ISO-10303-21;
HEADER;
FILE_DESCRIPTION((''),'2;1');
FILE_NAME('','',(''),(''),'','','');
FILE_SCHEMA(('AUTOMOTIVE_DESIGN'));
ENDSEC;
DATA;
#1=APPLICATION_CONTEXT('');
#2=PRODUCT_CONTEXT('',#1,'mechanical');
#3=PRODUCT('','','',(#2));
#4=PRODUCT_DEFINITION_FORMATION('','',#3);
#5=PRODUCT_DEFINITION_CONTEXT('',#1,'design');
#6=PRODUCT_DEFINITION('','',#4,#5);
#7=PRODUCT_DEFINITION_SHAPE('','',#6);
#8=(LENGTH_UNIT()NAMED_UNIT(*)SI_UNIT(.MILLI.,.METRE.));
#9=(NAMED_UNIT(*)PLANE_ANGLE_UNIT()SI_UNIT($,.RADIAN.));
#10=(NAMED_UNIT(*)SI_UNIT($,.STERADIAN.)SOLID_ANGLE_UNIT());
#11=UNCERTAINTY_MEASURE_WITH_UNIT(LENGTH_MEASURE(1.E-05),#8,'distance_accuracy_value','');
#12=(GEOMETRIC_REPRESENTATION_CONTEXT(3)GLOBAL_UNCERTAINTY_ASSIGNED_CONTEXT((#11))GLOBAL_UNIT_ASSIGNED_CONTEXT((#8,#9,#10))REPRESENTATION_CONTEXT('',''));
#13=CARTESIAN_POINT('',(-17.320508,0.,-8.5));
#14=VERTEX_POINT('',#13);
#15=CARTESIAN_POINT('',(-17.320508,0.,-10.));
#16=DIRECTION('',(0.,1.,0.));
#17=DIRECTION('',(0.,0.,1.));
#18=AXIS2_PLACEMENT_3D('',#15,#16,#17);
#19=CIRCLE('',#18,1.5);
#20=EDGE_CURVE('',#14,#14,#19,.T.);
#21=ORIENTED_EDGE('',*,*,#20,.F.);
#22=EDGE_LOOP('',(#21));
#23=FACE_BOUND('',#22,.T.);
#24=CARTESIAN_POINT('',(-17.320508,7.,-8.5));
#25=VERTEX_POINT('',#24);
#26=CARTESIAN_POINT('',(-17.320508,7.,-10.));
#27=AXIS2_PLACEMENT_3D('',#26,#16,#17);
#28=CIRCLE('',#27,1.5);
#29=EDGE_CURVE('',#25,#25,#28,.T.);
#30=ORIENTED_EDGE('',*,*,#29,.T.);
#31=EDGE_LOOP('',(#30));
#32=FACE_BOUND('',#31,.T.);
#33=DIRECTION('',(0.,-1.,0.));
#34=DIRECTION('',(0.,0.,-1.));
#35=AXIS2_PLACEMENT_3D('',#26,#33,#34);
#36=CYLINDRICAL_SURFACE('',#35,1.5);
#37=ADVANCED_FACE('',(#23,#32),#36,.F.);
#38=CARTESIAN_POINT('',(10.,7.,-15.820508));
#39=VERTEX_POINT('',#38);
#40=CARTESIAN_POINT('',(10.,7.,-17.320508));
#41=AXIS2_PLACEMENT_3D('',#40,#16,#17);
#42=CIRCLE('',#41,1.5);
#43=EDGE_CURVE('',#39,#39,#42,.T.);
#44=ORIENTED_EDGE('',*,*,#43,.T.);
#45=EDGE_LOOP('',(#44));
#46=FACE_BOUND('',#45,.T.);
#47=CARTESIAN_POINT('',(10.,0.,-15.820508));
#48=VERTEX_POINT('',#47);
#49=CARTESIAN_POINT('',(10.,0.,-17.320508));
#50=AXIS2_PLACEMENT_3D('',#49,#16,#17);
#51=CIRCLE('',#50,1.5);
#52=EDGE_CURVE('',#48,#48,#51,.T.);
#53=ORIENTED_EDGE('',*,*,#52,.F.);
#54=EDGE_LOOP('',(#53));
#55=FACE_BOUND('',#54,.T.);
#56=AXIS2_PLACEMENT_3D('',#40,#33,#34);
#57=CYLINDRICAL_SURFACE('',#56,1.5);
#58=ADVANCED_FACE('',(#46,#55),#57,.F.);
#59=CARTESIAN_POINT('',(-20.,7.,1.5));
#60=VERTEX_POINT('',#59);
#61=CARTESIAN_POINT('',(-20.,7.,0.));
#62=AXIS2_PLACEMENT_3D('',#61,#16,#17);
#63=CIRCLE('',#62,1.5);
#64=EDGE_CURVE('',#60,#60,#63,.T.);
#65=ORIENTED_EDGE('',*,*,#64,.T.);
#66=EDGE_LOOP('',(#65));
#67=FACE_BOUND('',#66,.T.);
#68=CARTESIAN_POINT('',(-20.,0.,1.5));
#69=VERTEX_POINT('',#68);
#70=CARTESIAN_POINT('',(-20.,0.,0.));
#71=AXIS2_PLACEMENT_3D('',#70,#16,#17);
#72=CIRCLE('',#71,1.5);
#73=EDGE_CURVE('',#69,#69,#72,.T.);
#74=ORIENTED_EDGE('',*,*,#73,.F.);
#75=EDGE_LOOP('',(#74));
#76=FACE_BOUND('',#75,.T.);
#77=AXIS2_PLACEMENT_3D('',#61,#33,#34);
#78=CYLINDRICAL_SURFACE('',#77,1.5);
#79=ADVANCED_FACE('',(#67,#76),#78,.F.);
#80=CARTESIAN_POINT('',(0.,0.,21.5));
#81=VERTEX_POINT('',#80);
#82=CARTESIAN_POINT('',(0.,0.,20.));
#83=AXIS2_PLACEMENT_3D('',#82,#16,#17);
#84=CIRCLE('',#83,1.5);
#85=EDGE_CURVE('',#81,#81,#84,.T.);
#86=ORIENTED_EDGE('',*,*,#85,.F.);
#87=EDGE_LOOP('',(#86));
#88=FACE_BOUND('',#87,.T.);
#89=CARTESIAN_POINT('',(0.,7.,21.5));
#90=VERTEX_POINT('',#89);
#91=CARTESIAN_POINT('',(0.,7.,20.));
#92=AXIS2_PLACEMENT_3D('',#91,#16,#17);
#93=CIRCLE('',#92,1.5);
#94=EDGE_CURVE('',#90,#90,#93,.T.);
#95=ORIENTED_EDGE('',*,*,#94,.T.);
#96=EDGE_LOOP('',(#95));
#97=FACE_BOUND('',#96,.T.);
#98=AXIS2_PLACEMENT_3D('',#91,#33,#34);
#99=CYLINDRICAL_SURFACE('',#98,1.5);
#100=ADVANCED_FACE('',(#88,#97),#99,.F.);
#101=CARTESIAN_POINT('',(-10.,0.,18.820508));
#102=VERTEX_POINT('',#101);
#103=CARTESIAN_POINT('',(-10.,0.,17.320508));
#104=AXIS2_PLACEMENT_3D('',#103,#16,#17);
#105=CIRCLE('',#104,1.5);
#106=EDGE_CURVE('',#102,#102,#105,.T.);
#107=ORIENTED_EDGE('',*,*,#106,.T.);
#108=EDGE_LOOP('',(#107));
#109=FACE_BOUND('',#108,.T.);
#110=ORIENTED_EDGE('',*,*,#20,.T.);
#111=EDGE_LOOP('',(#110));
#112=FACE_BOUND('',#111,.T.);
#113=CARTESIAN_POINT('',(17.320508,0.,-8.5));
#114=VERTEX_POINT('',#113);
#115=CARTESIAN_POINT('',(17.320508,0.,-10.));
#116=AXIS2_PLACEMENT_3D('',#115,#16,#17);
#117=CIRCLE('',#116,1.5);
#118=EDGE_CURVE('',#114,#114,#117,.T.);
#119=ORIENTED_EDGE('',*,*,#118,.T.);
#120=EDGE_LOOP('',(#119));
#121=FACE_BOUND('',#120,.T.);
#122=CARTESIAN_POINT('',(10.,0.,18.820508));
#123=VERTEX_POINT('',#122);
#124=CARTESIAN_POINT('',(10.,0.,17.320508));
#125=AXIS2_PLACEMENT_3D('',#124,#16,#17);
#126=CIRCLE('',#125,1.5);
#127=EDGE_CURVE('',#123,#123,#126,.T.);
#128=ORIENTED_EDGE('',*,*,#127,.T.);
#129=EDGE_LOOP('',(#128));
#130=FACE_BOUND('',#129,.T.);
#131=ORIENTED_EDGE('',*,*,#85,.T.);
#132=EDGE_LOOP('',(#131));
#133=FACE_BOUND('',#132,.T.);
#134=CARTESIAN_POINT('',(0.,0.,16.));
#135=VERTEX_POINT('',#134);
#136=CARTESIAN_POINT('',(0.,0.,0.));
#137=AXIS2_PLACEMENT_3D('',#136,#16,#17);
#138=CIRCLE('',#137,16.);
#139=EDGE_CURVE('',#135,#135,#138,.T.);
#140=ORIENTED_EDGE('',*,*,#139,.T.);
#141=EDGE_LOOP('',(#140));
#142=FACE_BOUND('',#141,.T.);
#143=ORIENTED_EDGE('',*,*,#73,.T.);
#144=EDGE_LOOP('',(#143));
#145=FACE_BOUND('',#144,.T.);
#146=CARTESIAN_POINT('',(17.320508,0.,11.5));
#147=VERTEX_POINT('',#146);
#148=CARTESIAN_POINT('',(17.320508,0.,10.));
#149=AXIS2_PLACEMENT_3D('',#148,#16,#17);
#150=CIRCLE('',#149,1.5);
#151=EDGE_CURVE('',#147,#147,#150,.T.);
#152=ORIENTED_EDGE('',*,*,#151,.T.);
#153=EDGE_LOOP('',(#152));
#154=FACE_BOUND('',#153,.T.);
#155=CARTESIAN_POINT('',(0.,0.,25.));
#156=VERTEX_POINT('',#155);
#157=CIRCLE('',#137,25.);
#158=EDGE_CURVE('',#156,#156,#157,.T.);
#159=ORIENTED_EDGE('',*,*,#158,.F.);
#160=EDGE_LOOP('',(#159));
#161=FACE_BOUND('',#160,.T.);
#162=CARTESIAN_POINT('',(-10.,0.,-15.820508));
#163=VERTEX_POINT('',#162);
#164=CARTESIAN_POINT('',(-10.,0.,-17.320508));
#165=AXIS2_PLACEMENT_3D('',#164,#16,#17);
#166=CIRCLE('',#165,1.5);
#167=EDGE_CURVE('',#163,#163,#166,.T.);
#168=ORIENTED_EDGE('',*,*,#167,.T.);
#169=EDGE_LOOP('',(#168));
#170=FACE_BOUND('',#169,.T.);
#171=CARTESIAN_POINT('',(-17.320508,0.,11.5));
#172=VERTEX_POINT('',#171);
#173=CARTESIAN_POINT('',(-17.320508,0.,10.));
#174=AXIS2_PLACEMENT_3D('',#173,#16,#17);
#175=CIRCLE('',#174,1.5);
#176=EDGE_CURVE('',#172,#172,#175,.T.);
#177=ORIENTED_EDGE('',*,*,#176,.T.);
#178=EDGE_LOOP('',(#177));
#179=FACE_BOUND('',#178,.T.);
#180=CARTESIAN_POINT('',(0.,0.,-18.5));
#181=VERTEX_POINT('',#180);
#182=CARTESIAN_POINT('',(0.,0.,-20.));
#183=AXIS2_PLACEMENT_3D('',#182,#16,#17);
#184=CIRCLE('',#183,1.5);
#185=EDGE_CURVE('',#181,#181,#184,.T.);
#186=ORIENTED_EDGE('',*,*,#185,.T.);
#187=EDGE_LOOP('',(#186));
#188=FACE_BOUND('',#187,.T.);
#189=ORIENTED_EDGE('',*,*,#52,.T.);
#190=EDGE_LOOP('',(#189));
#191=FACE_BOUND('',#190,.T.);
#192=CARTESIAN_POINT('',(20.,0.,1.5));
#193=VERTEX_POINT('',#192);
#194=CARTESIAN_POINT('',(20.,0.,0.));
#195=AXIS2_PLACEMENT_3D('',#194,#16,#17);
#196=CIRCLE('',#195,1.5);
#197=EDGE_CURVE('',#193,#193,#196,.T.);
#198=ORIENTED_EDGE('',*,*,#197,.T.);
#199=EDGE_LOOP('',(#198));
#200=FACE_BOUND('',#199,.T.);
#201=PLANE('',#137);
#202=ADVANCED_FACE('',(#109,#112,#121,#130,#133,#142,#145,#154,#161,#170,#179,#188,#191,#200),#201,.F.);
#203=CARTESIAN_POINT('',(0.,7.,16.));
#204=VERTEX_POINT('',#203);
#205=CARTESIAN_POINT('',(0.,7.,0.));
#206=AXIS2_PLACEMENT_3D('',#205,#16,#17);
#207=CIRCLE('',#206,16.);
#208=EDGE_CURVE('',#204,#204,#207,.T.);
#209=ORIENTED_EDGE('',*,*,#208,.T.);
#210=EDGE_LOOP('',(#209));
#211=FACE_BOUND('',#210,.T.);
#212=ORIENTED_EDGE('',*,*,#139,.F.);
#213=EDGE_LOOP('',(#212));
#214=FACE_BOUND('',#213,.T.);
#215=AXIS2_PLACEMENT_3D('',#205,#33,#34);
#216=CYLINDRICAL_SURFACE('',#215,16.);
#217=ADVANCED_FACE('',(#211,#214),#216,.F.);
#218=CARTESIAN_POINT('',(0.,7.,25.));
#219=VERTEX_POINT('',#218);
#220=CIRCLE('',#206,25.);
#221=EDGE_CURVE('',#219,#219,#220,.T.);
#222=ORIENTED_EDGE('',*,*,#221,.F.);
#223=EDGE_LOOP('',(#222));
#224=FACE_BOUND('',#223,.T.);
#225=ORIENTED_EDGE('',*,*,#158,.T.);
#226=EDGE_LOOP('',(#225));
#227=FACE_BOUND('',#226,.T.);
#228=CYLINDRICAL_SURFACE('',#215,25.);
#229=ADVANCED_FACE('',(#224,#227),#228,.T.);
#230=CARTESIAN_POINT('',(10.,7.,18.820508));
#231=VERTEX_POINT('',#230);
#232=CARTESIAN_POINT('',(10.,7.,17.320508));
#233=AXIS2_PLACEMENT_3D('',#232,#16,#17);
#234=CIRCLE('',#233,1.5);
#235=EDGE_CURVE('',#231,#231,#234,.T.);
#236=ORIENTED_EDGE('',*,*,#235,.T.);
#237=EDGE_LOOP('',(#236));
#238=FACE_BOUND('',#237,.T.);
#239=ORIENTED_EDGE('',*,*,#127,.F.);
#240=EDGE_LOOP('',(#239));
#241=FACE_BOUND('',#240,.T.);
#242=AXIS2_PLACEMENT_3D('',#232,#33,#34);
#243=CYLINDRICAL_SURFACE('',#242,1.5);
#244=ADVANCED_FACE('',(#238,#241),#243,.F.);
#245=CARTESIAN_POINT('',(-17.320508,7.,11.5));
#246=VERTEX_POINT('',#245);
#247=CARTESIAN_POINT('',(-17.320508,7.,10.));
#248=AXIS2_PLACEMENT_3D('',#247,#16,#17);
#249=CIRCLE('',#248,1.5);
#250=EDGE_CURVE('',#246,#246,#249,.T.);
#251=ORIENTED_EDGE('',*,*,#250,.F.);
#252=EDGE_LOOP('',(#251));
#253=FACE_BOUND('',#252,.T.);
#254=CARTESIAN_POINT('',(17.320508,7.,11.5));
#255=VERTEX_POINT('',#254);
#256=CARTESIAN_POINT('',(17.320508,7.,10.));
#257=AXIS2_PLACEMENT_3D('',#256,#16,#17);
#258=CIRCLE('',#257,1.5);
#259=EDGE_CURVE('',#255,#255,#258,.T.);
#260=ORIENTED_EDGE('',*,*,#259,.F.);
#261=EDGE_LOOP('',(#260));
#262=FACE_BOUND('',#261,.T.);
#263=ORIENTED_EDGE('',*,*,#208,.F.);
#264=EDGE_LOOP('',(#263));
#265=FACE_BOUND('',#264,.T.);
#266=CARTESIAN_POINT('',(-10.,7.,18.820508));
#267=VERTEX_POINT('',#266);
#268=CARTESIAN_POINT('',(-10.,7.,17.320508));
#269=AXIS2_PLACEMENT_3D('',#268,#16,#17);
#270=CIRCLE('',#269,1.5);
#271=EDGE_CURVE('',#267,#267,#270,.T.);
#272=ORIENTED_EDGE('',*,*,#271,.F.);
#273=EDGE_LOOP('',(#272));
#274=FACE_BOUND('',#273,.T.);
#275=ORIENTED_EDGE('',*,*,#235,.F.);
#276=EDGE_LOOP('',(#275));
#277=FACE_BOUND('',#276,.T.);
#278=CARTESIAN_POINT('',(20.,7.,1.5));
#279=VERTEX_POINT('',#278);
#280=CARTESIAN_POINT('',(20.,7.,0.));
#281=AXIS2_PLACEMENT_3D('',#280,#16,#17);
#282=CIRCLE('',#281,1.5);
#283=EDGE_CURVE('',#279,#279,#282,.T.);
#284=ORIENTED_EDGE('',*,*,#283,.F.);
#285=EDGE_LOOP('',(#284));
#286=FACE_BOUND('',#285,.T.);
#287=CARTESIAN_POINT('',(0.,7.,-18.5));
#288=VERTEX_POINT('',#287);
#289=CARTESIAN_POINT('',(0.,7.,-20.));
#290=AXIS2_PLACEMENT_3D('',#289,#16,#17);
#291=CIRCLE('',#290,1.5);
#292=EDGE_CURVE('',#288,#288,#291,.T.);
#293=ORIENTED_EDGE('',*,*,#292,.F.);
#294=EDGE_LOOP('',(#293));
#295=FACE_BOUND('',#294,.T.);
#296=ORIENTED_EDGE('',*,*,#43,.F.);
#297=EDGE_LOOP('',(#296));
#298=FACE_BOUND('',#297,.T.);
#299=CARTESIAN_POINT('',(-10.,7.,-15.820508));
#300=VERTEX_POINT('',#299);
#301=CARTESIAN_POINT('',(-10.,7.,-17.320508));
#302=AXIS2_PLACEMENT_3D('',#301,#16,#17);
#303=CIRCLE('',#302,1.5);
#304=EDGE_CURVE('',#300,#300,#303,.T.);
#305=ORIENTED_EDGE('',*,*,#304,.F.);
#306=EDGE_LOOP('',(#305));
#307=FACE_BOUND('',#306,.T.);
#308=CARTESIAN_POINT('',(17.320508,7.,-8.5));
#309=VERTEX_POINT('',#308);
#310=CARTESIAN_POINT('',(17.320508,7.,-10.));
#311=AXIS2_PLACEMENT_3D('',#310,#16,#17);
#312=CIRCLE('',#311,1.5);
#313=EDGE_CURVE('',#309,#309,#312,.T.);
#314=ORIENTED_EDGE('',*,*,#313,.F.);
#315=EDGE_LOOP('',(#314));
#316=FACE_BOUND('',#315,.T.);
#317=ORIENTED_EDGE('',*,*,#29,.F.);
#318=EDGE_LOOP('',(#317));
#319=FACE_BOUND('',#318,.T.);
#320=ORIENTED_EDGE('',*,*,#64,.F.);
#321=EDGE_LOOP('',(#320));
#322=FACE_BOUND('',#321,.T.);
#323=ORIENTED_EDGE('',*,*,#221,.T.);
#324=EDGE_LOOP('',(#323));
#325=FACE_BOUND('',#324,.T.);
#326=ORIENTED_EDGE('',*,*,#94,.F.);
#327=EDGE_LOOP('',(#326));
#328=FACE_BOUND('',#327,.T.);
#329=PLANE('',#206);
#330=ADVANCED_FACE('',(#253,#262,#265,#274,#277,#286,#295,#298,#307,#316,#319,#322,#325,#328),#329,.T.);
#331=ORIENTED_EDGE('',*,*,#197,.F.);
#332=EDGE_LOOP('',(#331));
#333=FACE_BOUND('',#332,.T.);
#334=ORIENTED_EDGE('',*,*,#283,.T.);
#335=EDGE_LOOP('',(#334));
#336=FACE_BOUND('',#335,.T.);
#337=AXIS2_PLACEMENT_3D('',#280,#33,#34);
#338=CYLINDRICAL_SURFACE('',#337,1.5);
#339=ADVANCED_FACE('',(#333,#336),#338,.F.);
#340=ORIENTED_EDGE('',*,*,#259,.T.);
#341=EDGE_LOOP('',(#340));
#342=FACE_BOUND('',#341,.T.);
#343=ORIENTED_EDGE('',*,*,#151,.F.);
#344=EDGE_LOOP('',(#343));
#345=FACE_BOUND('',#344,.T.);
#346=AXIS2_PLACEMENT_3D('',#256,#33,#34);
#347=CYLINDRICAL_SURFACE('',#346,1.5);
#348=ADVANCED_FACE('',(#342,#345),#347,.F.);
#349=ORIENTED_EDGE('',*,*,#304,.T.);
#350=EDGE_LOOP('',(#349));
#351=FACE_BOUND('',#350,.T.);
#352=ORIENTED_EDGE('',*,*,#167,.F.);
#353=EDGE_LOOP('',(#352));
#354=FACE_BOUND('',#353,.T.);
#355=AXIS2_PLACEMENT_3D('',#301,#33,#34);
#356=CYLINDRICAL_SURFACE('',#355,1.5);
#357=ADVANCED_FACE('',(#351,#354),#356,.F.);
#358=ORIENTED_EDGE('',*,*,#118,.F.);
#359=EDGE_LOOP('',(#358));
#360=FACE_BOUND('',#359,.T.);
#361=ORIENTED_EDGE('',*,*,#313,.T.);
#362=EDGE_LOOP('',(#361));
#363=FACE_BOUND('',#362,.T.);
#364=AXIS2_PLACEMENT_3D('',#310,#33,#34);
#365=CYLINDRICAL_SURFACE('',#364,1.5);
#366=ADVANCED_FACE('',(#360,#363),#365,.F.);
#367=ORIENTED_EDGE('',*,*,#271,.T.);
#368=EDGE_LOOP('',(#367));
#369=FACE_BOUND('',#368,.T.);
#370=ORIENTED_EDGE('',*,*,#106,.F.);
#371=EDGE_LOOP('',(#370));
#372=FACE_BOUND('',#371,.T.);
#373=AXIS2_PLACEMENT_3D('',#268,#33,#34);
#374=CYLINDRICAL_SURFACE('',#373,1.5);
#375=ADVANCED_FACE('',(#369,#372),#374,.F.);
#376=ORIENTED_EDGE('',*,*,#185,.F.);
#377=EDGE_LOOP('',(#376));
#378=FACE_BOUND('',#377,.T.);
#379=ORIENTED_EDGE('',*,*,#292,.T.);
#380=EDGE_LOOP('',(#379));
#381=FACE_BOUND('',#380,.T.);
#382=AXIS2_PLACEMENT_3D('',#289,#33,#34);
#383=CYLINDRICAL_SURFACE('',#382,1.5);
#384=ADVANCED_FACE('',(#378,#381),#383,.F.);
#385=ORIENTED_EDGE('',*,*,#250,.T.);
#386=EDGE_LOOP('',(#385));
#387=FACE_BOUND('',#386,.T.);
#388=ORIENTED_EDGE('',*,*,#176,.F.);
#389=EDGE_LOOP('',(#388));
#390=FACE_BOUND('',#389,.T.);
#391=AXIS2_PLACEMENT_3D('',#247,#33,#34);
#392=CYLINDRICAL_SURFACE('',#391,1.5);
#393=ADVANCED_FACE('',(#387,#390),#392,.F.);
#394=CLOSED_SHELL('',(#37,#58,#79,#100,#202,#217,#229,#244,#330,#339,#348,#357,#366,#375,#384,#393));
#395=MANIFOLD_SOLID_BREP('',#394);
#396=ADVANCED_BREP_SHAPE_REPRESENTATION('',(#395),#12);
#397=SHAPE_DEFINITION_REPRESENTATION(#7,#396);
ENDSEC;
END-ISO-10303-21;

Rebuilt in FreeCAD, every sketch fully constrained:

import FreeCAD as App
import Part
import Sketcher

V = App.Vector

doc = App.newDocument("Part")
body = doc.addObject("PartDesign::Body", "Body")

sketch1 = body.newObject("Sketcher::SketchObject", "Sketch")
sketch1.AttachmentSupport = (doc.getObject("XZ_Plane"), [""])
sketch1.MapMode = "FlatFace"
sketch1.addGeometry([
    Part.Circle(V(0, 0, 0), V(0, 0, 1), 25),
    Part.Circle(V(-17.3, -10, 0), V(0, 0, 1), 1.5),
    Part.Circle(V(-10, -17.3, 0), V(0, 0, 1), 1.5),
    Part.Circle(V(0, -20, 0), V(0, 0, 1), 1.5),
    Part.Circle(V(-20, 0, 0), V(0, 0, 1), 1.5),
    Part.Circle(V(-17.3, 10, 0), V(0, 0, 1), 1.5),
    Part.Circle(V(-10, 17.3, 0), V(0, 0, 1), 1.5),
    Part.Circle(V(10, -17.3, 0), V(0, 0, 1), 1.5),
    Part.Circle(V(17.3, -10, 0), V(0, 0, 1), 1.5),
    Part.Circle(V(20, 0, 0), V(0, 0, 1), 1.5),
    Part.Circle(V(0, 0, 0), V(0, 0, 1), 16),
    Part.Circle(V(0, 20, 0), V(0, 0, 1), 1.5),
    Part.Circle(V(10, 17.3, 0), V(0, 0, 1), 1.5),
    Part.Circle(V(17.3, 10, 0), V(0, 0, 1), 1.5),
], False)
sketch1.addConstraint([
    Sketcher.Constraint("Coincident", 0, 3, -1, 1),
    Sketcher.Constraint("Coincident", 10, 3, -1, 1),
    Sketcher.Constraint("Equal", 1, 2),
    Sketcher.Constraint("Equal", 2, 3),
    Sketcher.Constraint("Equal", 3, 4),
    Sketcher.Constraint("Equal", 4, 5),
    Sketcher.Constraint("Equal", 5, 6),
    Sketcher.Constraint("Equal", 6, 7),
    Sketcher.Constraint("Equal", 7, 8),
    Sketcher.Constraint("Equal", 8, 9),
    Sketcher.Constraint("Equal", 9, 11),
    Sketcher.Constraint("Equal", 11, 12),
    Sketcher.Constraint("Equal", 12, 13),
    Sketcher.Constraint("Symmetric", 6, 3, 7, 3, -1, 1),
    Sketcher.Constraint("Symmetric", 5, 3, 8, 3, -1, 1),
    Sketcher.Constraint("Symmetric", 4, 3, 9, 3, -1, 1),
    Sketcher.Constraint("Symmetric", 3, 3, 11, 3, -1, 1),
    Sketcher.Constraint("Symmetric", 2, 3, 12, 3, -1, 1),
    Sketcher.Constraint("Symmetric", 1, 3, 13, 3, -1, 1),
    Sketcher.Constraint("Symmetric", 2, 3, 7, 3, -2),
    Sketcher.Constraint("Symmetric", 1, 3, 8, 3, -2),
    Sketcher.Constraint("PointOnObject", 3, 3, -2),
    Sketcher.Constraint("PointOnObject", 4, 3, -1),
    Sketcher.Constraint("Diameter", 0, 50.0),
    Sketcher.Constraint("Diameter", 1, 3.0),
    Sketcher.Constraint("Diameter", 10, 32.0),
    Sketcher.Constraint("DistanceY", 1, 3, -1, 1, 10.0),
    Sketcher.Constraint("DistanceX", 2, 3, -1, 1, 10.0),
    Sketcher.Constraint("DistanceY", 3, 3, -1, 1, 20.0),
    Sketcher.Constraint("DistanceX", 4, 3, -1, 1, 20.0),
    Sketcher.Constraint("DistanceX", 1, 3, -1, 1, 17.320508),
    Sketcher.Constraint("DistanceY", 2, 3, -1, 1, 17.320508),
])
pad1 = body.newObject("PartDesign::Pad", "Pad")
pad1.Profile = sketch1
pad1.Length = 7
pad1.Reversed = True

doc.recompute()
